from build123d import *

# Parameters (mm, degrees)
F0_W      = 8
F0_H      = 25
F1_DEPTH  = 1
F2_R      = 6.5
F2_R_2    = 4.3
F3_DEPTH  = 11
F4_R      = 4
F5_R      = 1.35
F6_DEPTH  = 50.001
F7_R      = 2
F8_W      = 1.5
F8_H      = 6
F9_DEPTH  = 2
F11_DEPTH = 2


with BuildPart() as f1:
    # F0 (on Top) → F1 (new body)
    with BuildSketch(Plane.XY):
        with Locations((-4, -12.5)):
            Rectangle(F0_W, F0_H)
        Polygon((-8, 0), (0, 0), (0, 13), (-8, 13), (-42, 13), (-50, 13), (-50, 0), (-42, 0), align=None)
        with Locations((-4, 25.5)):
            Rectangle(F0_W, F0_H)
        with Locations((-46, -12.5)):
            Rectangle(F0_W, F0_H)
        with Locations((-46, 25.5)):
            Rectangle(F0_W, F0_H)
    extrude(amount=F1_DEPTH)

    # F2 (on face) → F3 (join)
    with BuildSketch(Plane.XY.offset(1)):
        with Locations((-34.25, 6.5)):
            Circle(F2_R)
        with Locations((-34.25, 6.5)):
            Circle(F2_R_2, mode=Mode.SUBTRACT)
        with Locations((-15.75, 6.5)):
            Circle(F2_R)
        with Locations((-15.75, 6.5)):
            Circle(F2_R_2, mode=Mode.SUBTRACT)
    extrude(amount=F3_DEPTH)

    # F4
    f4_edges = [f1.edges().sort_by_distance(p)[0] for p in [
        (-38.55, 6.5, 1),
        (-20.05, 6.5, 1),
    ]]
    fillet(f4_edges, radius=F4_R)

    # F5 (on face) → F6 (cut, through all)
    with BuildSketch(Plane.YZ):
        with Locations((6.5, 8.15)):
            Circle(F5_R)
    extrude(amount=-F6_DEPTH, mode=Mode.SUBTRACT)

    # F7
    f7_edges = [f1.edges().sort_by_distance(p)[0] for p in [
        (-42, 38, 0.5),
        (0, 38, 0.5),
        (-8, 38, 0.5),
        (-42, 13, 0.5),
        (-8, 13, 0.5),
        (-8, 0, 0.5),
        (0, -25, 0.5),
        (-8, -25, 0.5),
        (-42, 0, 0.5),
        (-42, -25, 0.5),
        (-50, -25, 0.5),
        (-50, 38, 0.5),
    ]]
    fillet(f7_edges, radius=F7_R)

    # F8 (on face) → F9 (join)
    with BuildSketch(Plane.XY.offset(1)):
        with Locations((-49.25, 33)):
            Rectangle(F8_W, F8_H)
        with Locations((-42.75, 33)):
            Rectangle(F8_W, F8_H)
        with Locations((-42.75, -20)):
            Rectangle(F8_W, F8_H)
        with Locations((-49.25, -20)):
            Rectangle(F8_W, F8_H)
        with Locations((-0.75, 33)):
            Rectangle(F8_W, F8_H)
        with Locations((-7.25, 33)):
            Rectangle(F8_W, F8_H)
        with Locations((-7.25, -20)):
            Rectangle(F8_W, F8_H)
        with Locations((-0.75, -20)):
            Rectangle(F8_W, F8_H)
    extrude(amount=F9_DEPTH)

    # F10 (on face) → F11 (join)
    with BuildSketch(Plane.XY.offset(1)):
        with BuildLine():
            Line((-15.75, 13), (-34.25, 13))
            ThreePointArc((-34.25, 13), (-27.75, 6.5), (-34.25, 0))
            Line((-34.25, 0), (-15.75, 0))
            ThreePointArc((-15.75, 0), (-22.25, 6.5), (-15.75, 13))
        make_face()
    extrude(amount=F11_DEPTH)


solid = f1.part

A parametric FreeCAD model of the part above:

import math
import FreeCAD as App
import Part
import Sketcher
from FreeCAD import Vector
Q = App.Units.Quantity


def edges_at(feature, points):
    """Names of the edges that pass closest to the given points."""
    edges = feature.Shape.Edges
    near = lambda p: min(range(len(edges)), key=lambda i: edges[i].distToShape(Part.Vertex(*p))[0])
    return sorted({f"Edge{near(p) + 1}" for p in points})

doc = App.newDocument("Part")
body = doc.addObject("PartDesign::Body", "Body")

# Sketch on XY plane
sketch1 = body.newObject("Sketcher::SketchObject", "Sketch")
sketch1.AttachmentSupport = (doc.getObject("XY_Plane"), [""])
sketch1.MapMode = "FlatFace"
sketch1.addGeometry([
    Part.LineSegment(Vector(-8, 0, 0), Vector(-8, -25, 0)),  # 0
    Part.LineSegment(Vector(-8, -25, 0), Vector(0, -25, 0)),  # 1
    Part.LineSegment(Vector(0, -25, 0), Vector(0, 38, 0)),  # 2
    Part.LineSegment(Vector(0, 38, 0), Vector(-8, 38, 0)),  # 3
    Part.LineSegment(Vector(-8, 38, 0), Vector(-8, 13, 0)),  # 4
    Part.LineSegment(Vector(-8, 13, 0), Vector(-42, 13, 0)),  # 5
    Part.LineSegment(Vector(-42, 13, 0), Vector(-42, 38, 0)),  # 6
    Part.LineSegment(Vector(-42, 38, 0), Vector(-50, 38, 0)),  # 7
    Part.LineSegment(Vector(-50, 38, 0), Vector(-50, -25, 0)),  # 8
    Part.LineSegment(Vector(-50, -25, 0), Vector(-42, -25, 0)),  # 9
    Part.LineSegment(Vector(-42, -25, 0), Vector(-42, 0, 0)),  # 10
    Part.LineSegment(Vector(-42, 0, 0), Vector(-8, 0, 0)),  # 11
], False)
sketch1.addConstraint([
    Sketcher.Constraint("Coincident", 0, 2, 1, 1),
    Sketcher.Constraint("Coincident", 1, 2, 2, 1),
    Sketcher.Constraint("Coincident", 2, 2, 3, 1),
    Sketcher.Constraint("Coincident", 3, 2, 4, 1),
    Sketcher.Constraint("Coincident", 4, 2, 5, 1),
    Sketcher.Constraint("Coincident", 5, 2, 6, 1),
    Sketcher.Constraint("Coincident", 6, 2, 7, 1),
    Sketcher.Constraint("Coincident", 7, 2, 8, 1),
    Sketcher.Constraint("Coincident", 8, 2, 9, 1),
    Sketcher.Constraint("Coincident", 9, 2, 10, 1),
    Sketcher.Constraint("Coincident", 10, 2, 11, 1),
    Sketcher.Constraint("Coincident", 11, 2, 0, 1),
    Sketcher.Constraint("Vertical", 0),
    Sketcher.Constraint("Horizontal", 1),
    Sketcher.Constraint("Vertical", 2),
    Sketcher.Constraint("Horizontal", 3),
    Sketcher.Constraint("Vertical", 4),
    Sketcher.Constraint("Horizontal", 5),
    Sketcher.Constraint("Vertical", 6),
    Sketcher.Constraint("Horizontal", 7),
    Sketcher.Constraint("Vertical", 8),
    Sketcher.Constraint("Horizontal", 9),
    Sketcher.Constraint("Vertical", 10),
    Sketcher.Constraint("Horizontal", 11),
    Sketcher.Constraint("PointOnObject", 1, 2, -2),
    Sketcher.Constraint("PointOnObject", 10, 2, -1),
    Sketcher.Constraint("Horizontal", 3, 2, 6, 2),
    Sketcher.Constraint("Horizontal", 1, 2, 8, 2),
    Sketcher.Constraint("Vertical", 0, 2, 3, 2),
    Sketcher.Constraint("Vertical", 6, 2, 9, 2),
    Sketcher.Constraint("Equal", 3, 7),
    Sketcher.Constraint("Equal", 0, 4),
    Sketcher.Constraint("DistanceX", 1, 1, 1, 2, Q("8 mm")),
    Sketcher.Constraint("DistanceX", 5, 2, 5, 1, Q("34 mm")),
    Sketcher.Constraint("DistanceY", 0, 2, 0, 1, Q("25 mm")),
    Sketcher.Constraint("DistanceY", 2, 1, 2, 2, Q("63 mm")),
])
pad1 = body.newObject("PartDesign::Pad", "Pad")
pad1.Profile = sketch1
pad1.Length = 1

# Sketch on XY plane
sketch2 = body.newObject("Sketcher::SketchObject", "Sketch001")
sketch2.AttachmentSupport = (doc.getObject("XY_Plane"), [""])
sketch2.MapMode = "FlatFace"
sketch2.AttachmentOffset = App.Placement(Vector(0, 0, 1), App.Rotation())
sketch2.addGeometry([
    Part.Circle(Vector(-34.2, 6.5, 0), Vector(0, 0, 1), 6.5),
    Part.Circle(Vector(-34.2, 6.5, 0), Vector(0, 0, 1), 4.3),
    Part.Circle(Vector(-15.8, 6.5, 0), Vector(0, 0, 1), 6.5),
    Part.Circle(Vector(-15.8, 6.5, 0), Vector(0, 0, 1), 4.3),
], False)
sketch2.addConstraint([
    Sketcher.Constraint("Coincident", 1, 3, 0, 3),
    Sketcher.Constraint("Coincident", 3, 3, 2, 3),
    Sketcher.Constraint("Equal", 0, 2),
    Sketcher.Constraint("Equal", 1, 3),
    Sketcher.Constraint("Horizontal", 1, 3, 2, 3),
    Sketcher.Constraint("Diameter", 0, Q("13 mm")),
    Sketcher.Constraint("Diameter", 1, Q("8.6 mm")),
    Sketcher.Constraint("DistanceY", -1, 1, 0, 3, Q("6.5 mm")),
    Sketcher.Constraint("DistanceX", 0, 3, 2, 3, Q("18.5 mm")),
    Sketcher.Constraint("DistanceX", 0, 3, -1, 1, Q("34.25 mm")),
])
pad2 = body.newObject("PartDesign::Pad", "Pad001")
pad2.Profile = sketch2
pad2.Length = 11
doc.recompute()

fillet = body.newObject("PartDesign::Fillet", "Fillet")
fillet.Base = (pad2, edges_at(pad2, [(-38.55, 6.5, 1), (-20.05, 6.5, 1)]))
fillet.Radius = 4

# Sketch on YZ plane
sketch3 = body.newObject("Sketcher::SketchObject", "Sketch002")
sketch3.AttachmentSupport = (doc.getObject("YZ_Plane"), [""])
sketch3.MapMode = "FlatFace"
sketch3.addGeometry(Part.Circle(Vector(6.5, 8.2, 0), Vector(0, 0, 1), 1.4), False)
sketch3.addConstraint([
    Sketcher.Constraint("Diameter", 0, Q("2.7 mm")),
    Sketcher.Constraint("DistanceX", -1, 1, 0, 3, Q("6.5 mm")),
    Sketcher.Constraint("DistanceY", -1, 1, 0, 3, Q("8.15 mm")),
])
pocket1 = body.newObject("PartDesign::Pocket", "Pocket")
pocket1.Profile = sketch3
pocket1.Type = "ThroughAll"
doc.recompute()

fillet2 = body.newObject("PartDesign::Fillet", "Fillet001")
fillet2.Base = (pocket1, edges_at(pocket1, [
    (-42, 38, 0.5),
    (0, 38, 0.5),
    (-8, 38, 0.5),
    (-42, 13, 0.5),
    (-8, 13, 0.5),
    (-8, 0, 0.5),
    (0, -25, 0.5),
    (-8, -25, 0.5),
    (-42, 0, 0.5),
    (-42, -25, 0.5),
    (-50, -25, 0.5),
    (-50, 38, 0.5),
]))
fillet2.Radius = 2

# Sketch on XY plane
sketch4 = body.newObject("Sketcher::SketchObject", "Sketch003")
sketch4.AttachmentSupport = (doc.getObject("XY_Plane"), [""])
sketch4.MapMode = "FlatFace"
sketch4.AttachmentOffset = App.Placement(Vector(0, 0, 1), App.Rotation())
sketch4.addGeometry([
    Part.LineSegment(Vector(-50, 36, 0), Vector(-50, 30, 0)),  # 0
    Part.LineSegment(Vector(-50, 30, 0), Vector(-48.5, 30, 0)),  # 1
    Part.LineSegment(Vector(-48.5, 30, 0), Vector(-48.5, 36, 0)),  # 2
    Part.LineSegment(Vector(-48.5, 36, 0), Vector(-50, 36, 0)),  # 3
    Part.LineSegment(Vector(-43.5, 36, 0), Vector(-43.5, 30, 0)),  # 4
    Part.LineSegment(Vector(-43.5, 30, 0), Vector(-42, 30, 0)),  # 5
    Part.LineSegment(Vector(-42, 30, 0), Vector(-42, 36, 0)),  # 6
    Part.LineSegment(Vector(-42, 36, 0), Vector(-43.5, 36, 0)),  # 7
    Part.LineSegment(Vector(-43.5, -17, 0), Vector(-43.5, -23, 0)),  # 8
    Part.LineSegment(Vector(-43.5, -23, 0), Vector(-42, -23, 0)),  # 9
    Part.LineSegment(Vector(-42, -23, 0), Vector(-42, -17, 0)),  # 10
    Part.LineSegment(Vector(-42, -17, 0), Vector(-43.5, -17, 0)),  # 11
    Part.LineSegment(Vector(-50, -17, 0), Vector(-50, -23, 0)),  # 12
    Part.LineSegment(Vector(-50, -23, 0), Vector(-48.5, -23, 0)),  # 13
    Part.LineSegment(Vector(-48.5, -23, 0), Vector(-48.5, -17, 0)),  # 14
    Part.LineSegment(Vector(-48.5, -17, 0), Vector(-50, -17, 0)),  # 15
    Part.LineSegment(Vector(-1.5, 36, 0), Vector(-1.5, 30, 0)),  # 16
    Part.LineSegment(Vector(-1.5, 30, 0), Vector(0, 30, 0)),  # 17
    Part.LineSegment(Vector(0, 30, 0), Vector(0, 36, 0)),  # 18
    Part.LineSegment(Vector(0, 36, 0), Vector(-1.5, 36, 0)),  # 19
    Part.LineSegment(Vector(-8, 36, 0), Vector(-8, 30, 0)),  # 20
    Part.LineSegment(Vector(-8, 30, 0), Vector(-6.5, 30, 0)),  # 21
    Part.LineSegment(Vector(-6.5, 30, 0), Vector(-6.5, 36, 0)),  # 22
    Part.LineSegment(Vector(-6.5, 36, 0), Vector(-8, 36, 0)),  # 23
    Part.LineSegment(Vector(-8, -17, 0), Vector(-8, -23, 0)),  # 24
    Part.LineSegment(Vector(-8, -23, 0), Vector(-6.5, -23, 0)),  # 25
    Part.LineSegment(Vector(-6.5, -23, 0), Vector(-6.5, -17, 0)),  # 26
    Part.LineSegment(Vector(-6.5, -17, 0), Vector(-8, -17, 0)),  # 27
    Part.LineSegment(Vector(-1.5, -17, 0), Vector(-1.5, -23, 0)),  # 28
    Part.LineSegment(Vector(-1.5, -23, 0), Vector(0, -23, 0)),  # 29
    Part.LineSegment(Vector(0, -23, 0), Vector(0, -17, 0)),  # 30
    Part.LineSegment(Vector(0, -17, 0), Vector(-1.5, -17, 0)),  # 31
], False)
sketch4.addConstraint([
    Sketcher.Constraint("Coincident", 0, 2, 1, 1),
    Sketcher.Constraint("Coincident", 1, 2, 2, 1),
    Sketcher.Constraint("Coincident", 2, 2, 3, 1),
    Sketcher.Constraint("Coincident", 3, 2, 0, 1),
    Sketcher.Constraint("Coincident", 4, 2, 5, 1),
    Sketcher.Constraint("Coincident", 5, 2, 6, 1),
    Sketcher.Constraint("Coincident", 6, 2, 7, 1),
    Sketcher.Constraint("Coincident", 7, 2, 4, 1),
    Sketcher.Constraint("Coincident", 8, 2, 9, 1),
    Sketcher.Constraint("Coincident", 9, 2, 10, 1),
    Sketcher.Constraint("Coincident", 10, 2, 11, 1),
    Sketcher.Constraint("Coincident", 11, 2, 8, 1),
    Sketcher.Constraint("Coincident", 12, 2, 13, 1),
    Sketcher.Constraint("Coincident", 13, 2, 14, 1),
    Sketcher.Constraint("Coincident", 14, 2, 15, 1),
    Sketcher.Constraint("Coincident", 15, 2, 12, 1),
    Sketcher.Constraint("Coincident", 16, 2, 17, 1),
    Sketcher.Constraint("Coincident", 17, 2, 18, 1),
    Sketcher.Constraint("Coincident", 18, 2, 19, 1),
    Sketcher.Constraint("Coincident", 19, 2, 16, 1),
    Sketcher.Constraint("Coincident", 20, 2, 21, 1),
    Sketcher.Constraint("Coincident", 21, 2, 22, 1),
    Sketcher.Constraint("Coincident", 22, 2, 23, 1),
    Sketcher.Constraint("Coincident", 23, 2, 20, 1),
    Sketcher.Constraint("Coincident", 24, 2, 25, 1),
    Sketcher.Constraint("Coincident", 25, 2, 26, 1),
    Sketcher.Constraint("Coincident", 26, 2, 27, 1),
    Sketcher.Constraint("Coincident", 27, 2, 24, 1),
    Sketcher.Constraint("Coincident", 28, 2, 29, 1),
    Sketcher.Constraint("Coincident", 29, 2, 30, 1),
    Sketcher.Constraint("Coincident", 30, 2, 31, 1),
    Sketcher.Constraint("Coincident", 31, 2, 28, 1),
    Sketcher.Constraint("Vertical", 0),
    Sketcher.Constraint("Horizontal", 1),
    Sketcher.Constraint("Vertical", 2),
    Sketcher.Constraint("Horizontal", 3),
    Sketcher.Constraint("Vertical", 4),
    Sketcher.Constraint("Horizontal", 5),
    Sketcher.Constraint("Vertical", 6),
    Sketcher.Constraint("Horizontal", 7),
    Sketcher.Constraint("Vertical", 8),
    Sketcher.Constraint("Horizontal", 9),
    Sketcher.Constraint("Vertical", 10),
    Sketcher.Constraint("Horizontal", 11),
    Sketcher.Constraint("Vertical", 12),
    Sketcher.Constraint("Horizontal", 13),
    Sketcher.Constraint("Vertical", 14),
    Sketcher.Constraint("Horizontal", 15),
    Sketcher.Constraint("Vertical", 16),
    Sketcher.Constraint("Horizontal", 17),
    Sketcher.Constraint("Vertical", 18),
    Sketcher.Constraint("Horizontal", 19),
    Sketcher.Constraint("Vertical", 20),
    Sketcher.Constraint("Horizontal", 21),
    Sketcher.Constraint("Vertical", 22),
    Sketcher.Constraint("Horizontal", 23),
    Sketcher.Constraint("Vertical", 24),
    Sketcher.Constraint("Horizontal", 25),
    Sketcher.Constraint("Vertical", 26),
    Sketcher.Constraint("Horizontal", 27),
    Sketcher.Constraint("Vertical", 28),
    Sketcher.Constraint("Horizontal", 29),
    Sketcher.Constraint("Vertical", 30),
    Sketcher.Constraint("Horizontal", 31),
    Sketcher.Constraint("PointOnObject", 17, 2, -2),
    Sketcher.Constraint("PointOnObject", 29, 2, -2),
    Sketcher.Constraint("Horizontal", 1, 2, 4, 2),
    Sketcher.Constraint("Horizontal", 3, 2, 6, 2),
    Sketcher.Constraint("Horizontal", 9, 2, 12, 2),
    Sketcher.Constraint("Horizontal", 11, 2, 14, 2),
    Sketcher.Constraint("Horizontal", 5, 2, 16, 2),
    Sketcher.Constraint("Horizontal", 7, 2, 18, 2),
    Sketcher.Constraint("Horizontal", 17, 2, 20, 2),
    Sketcher.Constraint("Horizontal", 19, 2, 22, 2),
    Sketcher.Constraint("Horizontal", 13, 2, 24, 2),
    Sketcher.Constraint("Horizontal", 15, 2, 26, 2),
    Sketcher.Constraint("Horizontal", 25, 2, 28, 2),
    Sketcher.Constraint("Horizontal", 27, 2, 30, 2),
    Sketcher.Constraint("Vertical", 7, 2, 8, 2),
    Sketcher.Constraint("Vertical", 6, 2, 9, 2),
    Sketcher.Constraint("Vertical", 3, 2, 12, 2),
    Sketcher.Constraint("Vertical", 2, 2, 13, 2),
    Sketcher.Constraint("Vertical", 23, 2, 24, 2),
    Sketcher.Constraint("Vertical", 22, 2, 25, 2),
    Sketcher.Constraint("Vertical", 19, 2, 28, 2),
    Sketcher.Constraint("Equal", 3, 5),
    Sketcher.Constraint("Equal", 15, 17),
    Sketcher.Constraint("Equal", 19, 21),
    Sketcher.Constraint("Equal", 6, 8),
    Sketcher.Constraint("DistanceY", 0, 2, 0, 1, Q("6 mm")),
    Sketcher.Constraint("DistanceX", 1, 1, 1, 2, Q("1.5 mm")),
    Sketcher.Constraint("DistanceX", 0, 2, -1, 1, Q("50 mm")),
    Sketcher.Constraint("DistanceY", -1, 1, 0, 2, Q("30 mm")),
    Sketcher.Constraint("DistanceX", 5, 2, -1, 1, Q("42 mm")),
    Sketcher.Constraint("DistanceY", 8, 2, -1, 1, Q("23 mm")),
    Sketcher.Constraint("DistanceX", 20, 2, -1, 1, Q("8 mm")),
])
pad3 = body.newObject("PartDesign::Pad", "Pad002")
pad3.Profile = sketch4
pad3.Length = 2

# Sketch on XY plane
sketch5 = body.newObject("Sketcher::SketchObject", "Sketch004")
sketch5.AttachmentSupport = (doc.getObject("XY_Plane"), [""])
sketch5.MapMode = "FlatFace"
sketch5.AttachmentOffset = App.Placement(Vector(0, 0, 1), App.Rotation())
sketch5.addGeometry([
    Part.LineSegment(Vector(-16, 13, 0), Vector(-34, 13, 0)),
    Part.ArcOfCircle(Part.Circle(Vector(-34, 6, 0), Vector(0, 0, 1), 6), math.radians(-90), math.radians(90)),
    Part.LineSegment(Vector(-34, 0, 0), Vector(-16, 0, 0)),
    Part.ArcOfCircle(Part.Circle(Vector(-16, 6, 0), Vector(0, 0, 1), 6), math.radians(90), math.radians(270)),
], False)
sketch5.addConstraint([
    Sketcher.Constraint("Tangent", 0, 2, 1, 2),
    Sketcher.Constraint("Tangent", 1, 1, 2, 1),
    Sketcher.Constraint("Tangent", 2, 2, 3, 2),
    Sketcher.Constraint("Tangent", 3, 1, 0, 1),
    Sketcher.Constraint("Horizontal", 0),
    Sketcher.Constraint("Horizontal", 2),
    Sketcher.Constraint("PointOnObject", 1, 1, -1),
    Sketcher.Constraint("Radius", 1, Q("6.5 mm")),
    Sketcher.Constraint("DistanceX", 0, 2, 0, 1, Q("18.5 mm")),
    Sketcher.Constraint("DistanceX", 1, 3, -1, 1, Q("34.25 mm")),
])
pad4 = body.newObject("PartDesign::Pad", "Pad003")
pad4.Profile = sketch5
pad4.Length = 2

doc.recompute()
